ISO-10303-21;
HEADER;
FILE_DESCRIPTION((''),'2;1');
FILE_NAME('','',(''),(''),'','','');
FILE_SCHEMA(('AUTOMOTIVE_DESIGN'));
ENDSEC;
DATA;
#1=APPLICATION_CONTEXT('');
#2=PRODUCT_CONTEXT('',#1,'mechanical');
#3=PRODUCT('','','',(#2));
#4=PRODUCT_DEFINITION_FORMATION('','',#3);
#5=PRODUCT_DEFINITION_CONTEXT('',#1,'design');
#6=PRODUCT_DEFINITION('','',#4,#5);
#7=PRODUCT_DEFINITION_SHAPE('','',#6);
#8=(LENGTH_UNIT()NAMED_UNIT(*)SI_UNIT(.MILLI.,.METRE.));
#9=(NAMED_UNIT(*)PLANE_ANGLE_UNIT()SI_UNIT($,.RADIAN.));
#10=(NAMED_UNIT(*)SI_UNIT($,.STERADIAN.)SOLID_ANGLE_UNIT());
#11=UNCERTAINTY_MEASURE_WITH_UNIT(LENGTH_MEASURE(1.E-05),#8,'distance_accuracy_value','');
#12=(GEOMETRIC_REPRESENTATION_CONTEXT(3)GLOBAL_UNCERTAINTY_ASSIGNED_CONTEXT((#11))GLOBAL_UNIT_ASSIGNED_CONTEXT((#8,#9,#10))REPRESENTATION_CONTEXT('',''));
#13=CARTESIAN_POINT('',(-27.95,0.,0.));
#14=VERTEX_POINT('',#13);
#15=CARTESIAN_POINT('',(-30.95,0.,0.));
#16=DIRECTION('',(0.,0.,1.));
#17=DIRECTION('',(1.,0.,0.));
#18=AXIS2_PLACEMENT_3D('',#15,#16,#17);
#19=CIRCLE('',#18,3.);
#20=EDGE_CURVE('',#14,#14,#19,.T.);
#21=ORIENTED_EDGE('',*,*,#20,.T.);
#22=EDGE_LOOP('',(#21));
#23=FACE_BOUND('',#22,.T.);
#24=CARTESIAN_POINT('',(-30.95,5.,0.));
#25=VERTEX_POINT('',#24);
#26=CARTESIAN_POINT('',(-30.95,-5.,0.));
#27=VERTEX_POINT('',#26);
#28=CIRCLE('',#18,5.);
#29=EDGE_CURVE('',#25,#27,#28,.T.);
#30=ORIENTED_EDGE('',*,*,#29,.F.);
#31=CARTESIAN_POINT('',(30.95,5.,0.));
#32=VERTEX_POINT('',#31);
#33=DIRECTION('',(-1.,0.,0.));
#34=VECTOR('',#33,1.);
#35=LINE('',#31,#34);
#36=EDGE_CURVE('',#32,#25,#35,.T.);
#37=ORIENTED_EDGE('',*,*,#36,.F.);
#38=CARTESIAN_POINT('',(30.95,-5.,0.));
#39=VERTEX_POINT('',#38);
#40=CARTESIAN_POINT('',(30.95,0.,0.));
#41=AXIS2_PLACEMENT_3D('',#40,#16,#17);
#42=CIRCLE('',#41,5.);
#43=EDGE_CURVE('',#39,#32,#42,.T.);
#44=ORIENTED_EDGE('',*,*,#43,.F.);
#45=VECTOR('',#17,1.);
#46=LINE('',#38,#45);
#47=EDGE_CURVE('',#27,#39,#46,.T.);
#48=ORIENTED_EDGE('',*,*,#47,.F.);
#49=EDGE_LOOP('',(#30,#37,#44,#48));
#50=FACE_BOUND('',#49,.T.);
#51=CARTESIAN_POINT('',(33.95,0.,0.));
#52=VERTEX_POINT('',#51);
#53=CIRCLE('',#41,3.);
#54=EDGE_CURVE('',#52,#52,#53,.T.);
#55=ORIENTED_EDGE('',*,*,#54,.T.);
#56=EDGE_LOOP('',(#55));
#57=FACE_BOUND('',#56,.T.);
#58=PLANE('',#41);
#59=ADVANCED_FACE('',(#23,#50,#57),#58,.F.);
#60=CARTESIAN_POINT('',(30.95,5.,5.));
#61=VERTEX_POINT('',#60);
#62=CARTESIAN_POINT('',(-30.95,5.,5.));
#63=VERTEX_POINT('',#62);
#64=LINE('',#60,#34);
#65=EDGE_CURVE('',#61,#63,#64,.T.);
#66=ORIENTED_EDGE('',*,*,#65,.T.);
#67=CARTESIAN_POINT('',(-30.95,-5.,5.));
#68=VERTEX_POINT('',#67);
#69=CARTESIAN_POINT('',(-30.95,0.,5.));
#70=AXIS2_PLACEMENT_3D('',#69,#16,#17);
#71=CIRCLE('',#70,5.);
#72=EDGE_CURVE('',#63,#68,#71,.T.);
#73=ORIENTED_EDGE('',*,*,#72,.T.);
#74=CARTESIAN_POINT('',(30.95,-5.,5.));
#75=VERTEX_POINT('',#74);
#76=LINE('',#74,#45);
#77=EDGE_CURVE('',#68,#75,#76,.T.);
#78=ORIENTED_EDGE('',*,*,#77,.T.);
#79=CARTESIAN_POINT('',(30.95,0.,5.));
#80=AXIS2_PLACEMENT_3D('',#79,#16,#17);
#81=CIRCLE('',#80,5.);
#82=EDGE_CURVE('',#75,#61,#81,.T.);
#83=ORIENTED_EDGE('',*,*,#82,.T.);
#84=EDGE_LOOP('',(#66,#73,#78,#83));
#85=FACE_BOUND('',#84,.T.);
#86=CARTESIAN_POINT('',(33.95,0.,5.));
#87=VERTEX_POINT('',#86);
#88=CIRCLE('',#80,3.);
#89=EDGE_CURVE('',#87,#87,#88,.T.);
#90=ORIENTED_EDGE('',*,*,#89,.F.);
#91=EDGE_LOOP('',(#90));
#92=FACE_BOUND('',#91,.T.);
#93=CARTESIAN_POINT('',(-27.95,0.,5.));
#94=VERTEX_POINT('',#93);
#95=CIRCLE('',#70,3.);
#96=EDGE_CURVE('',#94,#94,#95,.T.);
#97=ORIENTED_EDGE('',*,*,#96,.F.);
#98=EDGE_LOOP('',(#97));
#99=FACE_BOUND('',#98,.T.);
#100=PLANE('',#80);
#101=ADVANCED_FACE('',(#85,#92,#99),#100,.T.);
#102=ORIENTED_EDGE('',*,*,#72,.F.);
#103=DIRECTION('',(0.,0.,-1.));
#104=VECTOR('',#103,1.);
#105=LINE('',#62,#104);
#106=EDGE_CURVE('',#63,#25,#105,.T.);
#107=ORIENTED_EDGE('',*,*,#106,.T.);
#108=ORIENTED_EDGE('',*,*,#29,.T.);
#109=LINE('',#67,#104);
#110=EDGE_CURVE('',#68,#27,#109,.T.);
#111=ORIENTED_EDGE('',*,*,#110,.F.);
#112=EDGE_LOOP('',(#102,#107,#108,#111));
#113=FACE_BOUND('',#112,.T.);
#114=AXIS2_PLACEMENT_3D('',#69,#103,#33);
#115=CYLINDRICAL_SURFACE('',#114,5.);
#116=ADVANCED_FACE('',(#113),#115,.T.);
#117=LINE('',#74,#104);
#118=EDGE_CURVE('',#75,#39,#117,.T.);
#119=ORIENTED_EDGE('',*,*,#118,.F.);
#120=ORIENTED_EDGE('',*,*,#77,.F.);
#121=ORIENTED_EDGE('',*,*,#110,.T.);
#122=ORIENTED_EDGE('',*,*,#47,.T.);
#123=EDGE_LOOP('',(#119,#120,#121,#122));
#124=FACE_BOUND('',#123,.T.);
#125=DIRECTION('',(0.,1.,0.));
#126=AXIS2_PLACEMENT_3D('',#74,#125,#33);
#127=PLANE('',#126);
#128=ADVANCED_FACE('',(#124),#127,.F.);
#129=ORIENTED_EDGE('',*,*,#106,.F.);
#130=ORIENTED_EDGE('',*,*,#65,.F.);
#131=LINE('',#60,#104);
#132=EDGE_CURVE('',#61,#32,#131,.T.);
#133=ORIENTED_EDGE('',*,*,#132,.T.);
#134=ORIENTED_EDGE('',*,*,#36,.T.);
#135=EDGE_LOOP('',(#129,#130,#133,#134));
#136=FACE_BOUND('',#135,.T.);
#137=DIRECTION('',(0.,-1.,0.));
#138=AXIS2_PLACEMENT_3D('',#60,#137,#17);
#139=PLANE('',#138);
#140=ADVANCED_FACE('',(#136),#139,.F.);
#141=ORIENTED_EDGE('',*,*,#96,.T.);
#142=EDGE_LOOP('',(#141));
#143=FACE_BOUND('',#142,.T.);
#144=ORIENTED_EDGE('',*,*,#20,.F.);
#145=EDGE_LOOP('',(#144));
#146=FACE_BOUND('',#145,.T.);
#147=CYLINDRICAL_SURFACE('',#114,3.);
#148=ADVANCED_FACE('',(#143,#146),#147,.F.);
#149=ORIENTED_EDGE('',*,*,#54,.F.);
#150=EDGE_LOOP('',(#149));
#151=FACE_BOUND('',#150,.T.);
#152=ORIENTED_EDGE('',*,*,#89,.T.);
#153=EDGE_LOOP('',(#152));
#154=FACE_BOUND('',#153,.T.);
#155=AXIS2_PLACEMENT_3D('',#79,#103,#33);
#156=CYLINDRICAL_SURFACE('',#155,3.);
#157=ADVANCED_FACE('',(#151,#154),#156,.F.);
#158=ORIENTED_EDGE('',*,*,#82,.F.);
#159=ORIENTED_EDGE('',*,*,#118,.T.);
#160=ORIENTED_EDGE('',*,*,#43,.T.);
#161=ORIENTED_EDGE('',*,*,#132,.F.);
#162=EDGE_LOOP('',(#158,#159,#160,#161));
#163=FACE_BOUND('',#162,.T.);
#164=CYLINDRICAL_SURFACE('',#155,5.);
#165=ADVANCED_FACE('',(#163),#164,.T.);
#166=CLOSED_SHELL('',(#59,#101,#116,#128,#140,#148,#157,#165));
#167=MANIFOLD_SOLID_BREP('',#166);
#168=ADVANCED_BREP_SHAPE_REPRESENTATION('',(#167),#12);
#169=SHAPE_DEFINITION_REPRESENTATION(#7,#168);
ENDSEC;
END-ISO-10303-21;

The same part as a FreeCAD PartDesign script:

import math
import FreeCAD as App
import Part
import Sketcher
from FreeCAD import Vector
Q = App.Units.Quantity

doc = App.newDocument("Part")
body = doc.addObject("PartDesign::Body", "Body")

# Sketch on XY plane
sketch1 = body.newObject("Sketcher::SketchObject", "Sketch")
sketch1.AttachmentSupport = (doc.getObject("XY_Plane"), [""])
sketch1.MapMode = "FlatFace"
sketch1.addGeometry([
    Part.LineSegment(Vector(-30.95, -5, 0), Vector(30.95, -5, 0)),  # 0
    Part.ArcOfCircle(Part.Circle(Vector(30.95, 0, 0), Vector(0, 0, 1), 5), math.radians(-90), math.radians(90)),  # 1
    Part.LineSegment(Vector(30.95, 5, 0), Vector(-30.95, 5, 0)),  # 2
    Part.ArcOfCircle(Part.Circle(Vector(-30.95, 0, 0), Vector(0, 0, 1), 5), math.radians(90), math.radians(270)),  # 3
    Part.Circle(Vector(30.95, 0, 0), Vector(0, 0, 1), 3),  # 4
    Part.Circle(Vector(-30.95, 0, 0), Vector(0, 0, 1), 3),  # 5
], False)
sketch1.addConstraint([
    Sketcher.Constraint("Tangent", 0, 2, 1, 1),
    Sketcher.Constraint("Tangent", 1, 2, 2, 1),
    Sketcher.Constraint("Tangent", 2, 2, 3, 1),
    Sketcher.Constraint("Tangent", 3, 2, 0, 1),
    Sketcher.Constraint("Horizontal", 0),
    Sketcher.Constraint("Horizontal", 2),
    Sketcher.Constraint("Coincident", 4, 3, 1, 3),
    Sketcher.Constraint("Coincident", 5, 3, 3, 3),
    Sketcher.Constraint("Equal", 4, 5),
    Sketcher.Constraint("Symmetric", 1, 3, 3, 3, -1, 1),
    Sketcher.Constraint("Diameter", 4, Q("6 mm")),
    Sketcher.Constraint("Radius", 1, Q("5 mm")),
    Sketcher.Constraint("DistanceX", 0, 1, 0, 2, Q("61.9 mm")),
])
pad1 = body.newObject("PartDesign::Pad", "Pad")
pad1.Profile = sketch1
pad1.Length = 5

doc.recompute()
